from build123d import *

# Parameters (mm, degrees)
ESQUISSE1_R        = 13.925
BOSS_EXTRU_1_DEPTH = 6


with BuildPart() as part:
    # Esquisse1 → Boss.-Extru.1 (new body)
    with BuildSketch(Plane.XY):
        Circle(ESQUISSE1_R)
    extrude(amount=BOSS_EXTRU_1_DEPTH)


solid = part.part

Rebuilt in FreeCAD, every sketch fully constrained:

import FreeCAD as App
import Part
import Sketcher
from FreeCAD import Vector

doc = App.newDocument("Part")
body = doc.addObject("PartDesign::Body", "Body")

# Sketch on XY plane
sketch1 = body.newObject("Sketcher::SketchObject", "Sketch")
sketch1.AttachmentSupport = (doc.getObject("XY_Plane"), [""])
sketch1.MapMode = "FlatFace"
sketch1.addGeometry(Part.Circle(Vector(0, 0, 0), Vector(0, 0, 1), 14), False)
sketch1.addConstraint(Sketcher.Constraint("Coincident", 0, 3, -1, 1))
sketch1.addConstraint(Sketcher.Constraint("Diameter", 0, 27.85))
pad1 = body.newObject("PartDesign::Pad", "Pad")
pad1.Profile = sketch1
pad1.Length = 6

doc.recompute()
